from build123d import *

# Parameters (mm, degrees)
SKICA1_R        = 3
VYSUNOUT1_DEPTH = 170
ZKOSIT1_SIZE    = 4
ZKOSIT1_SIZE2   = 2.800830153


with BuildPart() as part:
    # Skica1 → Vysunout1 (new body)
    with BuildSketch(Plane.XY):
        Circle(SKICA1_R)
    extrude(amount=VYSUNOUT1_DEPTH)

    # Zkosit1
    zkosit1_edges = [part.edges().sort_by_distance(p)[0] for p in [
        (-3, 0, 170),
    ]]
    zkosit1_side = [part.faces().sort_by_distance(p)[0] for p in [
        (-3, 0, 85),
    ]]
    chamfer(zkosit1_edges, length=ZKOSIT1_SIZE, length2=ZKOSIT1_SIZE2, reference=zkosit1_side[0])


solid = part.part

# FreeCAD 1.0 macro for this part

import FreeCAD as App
import Part
import Sketcher
from FreeCAD import Vector
Q = App.Units.Quantity


def edges_at(feature, points):
    """Names of the edges that pass closest to the given points."""
    edges = feature.Shape.Edges
    near = lambda p: min(range(len(edges)), key=lambda i: edges[i].distToShape(Part.Vertex(*p))[0])
    return sorted({f"Edge{near(p) + 1}" for p in points})

doc = App.newDocument("Part")
body = doc.addObject("PartDesign::Body", "Body")

# Sketch on XY plane
sketch1 = doc.addObject("Sketcher::SketchObject", "Sketch")
body.addObject(sketch1)
sketch1.AttachmentSupport = (doc.XY_Plane, [""])
sketch1.MapMode = "FlatFace"
sketch1.addGeometry(Part.Circle(Vector(0, 0, 0), Vector(0, 0, 1), 3), False)
sketch1.addConstraint(Sketcher.Constraint("Coincident", 0, 3, -1, 1))
sketch1.addConstraint(Sketcher.Constraint("Diameter", 0, Q("6 mm")))
pad1 = doc.addObject("PartDesign::Pad", "Pad")
body.addObject(pad1)
pad1.Profile = sketch1
pad1.Length = 170
doc.recompute()

chamfer = doc.addObject("PartDesign::Chamfer", "Chamfer")
body.addObject(chamfer)
chamfer.Base = (pad1, edges_at(pad1, [(-3, 0, 170)]))
chamfer.ChamferType = "Two distances"
chamfer.Size = 4
chamfer.Size2 = 2.80083

doc.recompute()
